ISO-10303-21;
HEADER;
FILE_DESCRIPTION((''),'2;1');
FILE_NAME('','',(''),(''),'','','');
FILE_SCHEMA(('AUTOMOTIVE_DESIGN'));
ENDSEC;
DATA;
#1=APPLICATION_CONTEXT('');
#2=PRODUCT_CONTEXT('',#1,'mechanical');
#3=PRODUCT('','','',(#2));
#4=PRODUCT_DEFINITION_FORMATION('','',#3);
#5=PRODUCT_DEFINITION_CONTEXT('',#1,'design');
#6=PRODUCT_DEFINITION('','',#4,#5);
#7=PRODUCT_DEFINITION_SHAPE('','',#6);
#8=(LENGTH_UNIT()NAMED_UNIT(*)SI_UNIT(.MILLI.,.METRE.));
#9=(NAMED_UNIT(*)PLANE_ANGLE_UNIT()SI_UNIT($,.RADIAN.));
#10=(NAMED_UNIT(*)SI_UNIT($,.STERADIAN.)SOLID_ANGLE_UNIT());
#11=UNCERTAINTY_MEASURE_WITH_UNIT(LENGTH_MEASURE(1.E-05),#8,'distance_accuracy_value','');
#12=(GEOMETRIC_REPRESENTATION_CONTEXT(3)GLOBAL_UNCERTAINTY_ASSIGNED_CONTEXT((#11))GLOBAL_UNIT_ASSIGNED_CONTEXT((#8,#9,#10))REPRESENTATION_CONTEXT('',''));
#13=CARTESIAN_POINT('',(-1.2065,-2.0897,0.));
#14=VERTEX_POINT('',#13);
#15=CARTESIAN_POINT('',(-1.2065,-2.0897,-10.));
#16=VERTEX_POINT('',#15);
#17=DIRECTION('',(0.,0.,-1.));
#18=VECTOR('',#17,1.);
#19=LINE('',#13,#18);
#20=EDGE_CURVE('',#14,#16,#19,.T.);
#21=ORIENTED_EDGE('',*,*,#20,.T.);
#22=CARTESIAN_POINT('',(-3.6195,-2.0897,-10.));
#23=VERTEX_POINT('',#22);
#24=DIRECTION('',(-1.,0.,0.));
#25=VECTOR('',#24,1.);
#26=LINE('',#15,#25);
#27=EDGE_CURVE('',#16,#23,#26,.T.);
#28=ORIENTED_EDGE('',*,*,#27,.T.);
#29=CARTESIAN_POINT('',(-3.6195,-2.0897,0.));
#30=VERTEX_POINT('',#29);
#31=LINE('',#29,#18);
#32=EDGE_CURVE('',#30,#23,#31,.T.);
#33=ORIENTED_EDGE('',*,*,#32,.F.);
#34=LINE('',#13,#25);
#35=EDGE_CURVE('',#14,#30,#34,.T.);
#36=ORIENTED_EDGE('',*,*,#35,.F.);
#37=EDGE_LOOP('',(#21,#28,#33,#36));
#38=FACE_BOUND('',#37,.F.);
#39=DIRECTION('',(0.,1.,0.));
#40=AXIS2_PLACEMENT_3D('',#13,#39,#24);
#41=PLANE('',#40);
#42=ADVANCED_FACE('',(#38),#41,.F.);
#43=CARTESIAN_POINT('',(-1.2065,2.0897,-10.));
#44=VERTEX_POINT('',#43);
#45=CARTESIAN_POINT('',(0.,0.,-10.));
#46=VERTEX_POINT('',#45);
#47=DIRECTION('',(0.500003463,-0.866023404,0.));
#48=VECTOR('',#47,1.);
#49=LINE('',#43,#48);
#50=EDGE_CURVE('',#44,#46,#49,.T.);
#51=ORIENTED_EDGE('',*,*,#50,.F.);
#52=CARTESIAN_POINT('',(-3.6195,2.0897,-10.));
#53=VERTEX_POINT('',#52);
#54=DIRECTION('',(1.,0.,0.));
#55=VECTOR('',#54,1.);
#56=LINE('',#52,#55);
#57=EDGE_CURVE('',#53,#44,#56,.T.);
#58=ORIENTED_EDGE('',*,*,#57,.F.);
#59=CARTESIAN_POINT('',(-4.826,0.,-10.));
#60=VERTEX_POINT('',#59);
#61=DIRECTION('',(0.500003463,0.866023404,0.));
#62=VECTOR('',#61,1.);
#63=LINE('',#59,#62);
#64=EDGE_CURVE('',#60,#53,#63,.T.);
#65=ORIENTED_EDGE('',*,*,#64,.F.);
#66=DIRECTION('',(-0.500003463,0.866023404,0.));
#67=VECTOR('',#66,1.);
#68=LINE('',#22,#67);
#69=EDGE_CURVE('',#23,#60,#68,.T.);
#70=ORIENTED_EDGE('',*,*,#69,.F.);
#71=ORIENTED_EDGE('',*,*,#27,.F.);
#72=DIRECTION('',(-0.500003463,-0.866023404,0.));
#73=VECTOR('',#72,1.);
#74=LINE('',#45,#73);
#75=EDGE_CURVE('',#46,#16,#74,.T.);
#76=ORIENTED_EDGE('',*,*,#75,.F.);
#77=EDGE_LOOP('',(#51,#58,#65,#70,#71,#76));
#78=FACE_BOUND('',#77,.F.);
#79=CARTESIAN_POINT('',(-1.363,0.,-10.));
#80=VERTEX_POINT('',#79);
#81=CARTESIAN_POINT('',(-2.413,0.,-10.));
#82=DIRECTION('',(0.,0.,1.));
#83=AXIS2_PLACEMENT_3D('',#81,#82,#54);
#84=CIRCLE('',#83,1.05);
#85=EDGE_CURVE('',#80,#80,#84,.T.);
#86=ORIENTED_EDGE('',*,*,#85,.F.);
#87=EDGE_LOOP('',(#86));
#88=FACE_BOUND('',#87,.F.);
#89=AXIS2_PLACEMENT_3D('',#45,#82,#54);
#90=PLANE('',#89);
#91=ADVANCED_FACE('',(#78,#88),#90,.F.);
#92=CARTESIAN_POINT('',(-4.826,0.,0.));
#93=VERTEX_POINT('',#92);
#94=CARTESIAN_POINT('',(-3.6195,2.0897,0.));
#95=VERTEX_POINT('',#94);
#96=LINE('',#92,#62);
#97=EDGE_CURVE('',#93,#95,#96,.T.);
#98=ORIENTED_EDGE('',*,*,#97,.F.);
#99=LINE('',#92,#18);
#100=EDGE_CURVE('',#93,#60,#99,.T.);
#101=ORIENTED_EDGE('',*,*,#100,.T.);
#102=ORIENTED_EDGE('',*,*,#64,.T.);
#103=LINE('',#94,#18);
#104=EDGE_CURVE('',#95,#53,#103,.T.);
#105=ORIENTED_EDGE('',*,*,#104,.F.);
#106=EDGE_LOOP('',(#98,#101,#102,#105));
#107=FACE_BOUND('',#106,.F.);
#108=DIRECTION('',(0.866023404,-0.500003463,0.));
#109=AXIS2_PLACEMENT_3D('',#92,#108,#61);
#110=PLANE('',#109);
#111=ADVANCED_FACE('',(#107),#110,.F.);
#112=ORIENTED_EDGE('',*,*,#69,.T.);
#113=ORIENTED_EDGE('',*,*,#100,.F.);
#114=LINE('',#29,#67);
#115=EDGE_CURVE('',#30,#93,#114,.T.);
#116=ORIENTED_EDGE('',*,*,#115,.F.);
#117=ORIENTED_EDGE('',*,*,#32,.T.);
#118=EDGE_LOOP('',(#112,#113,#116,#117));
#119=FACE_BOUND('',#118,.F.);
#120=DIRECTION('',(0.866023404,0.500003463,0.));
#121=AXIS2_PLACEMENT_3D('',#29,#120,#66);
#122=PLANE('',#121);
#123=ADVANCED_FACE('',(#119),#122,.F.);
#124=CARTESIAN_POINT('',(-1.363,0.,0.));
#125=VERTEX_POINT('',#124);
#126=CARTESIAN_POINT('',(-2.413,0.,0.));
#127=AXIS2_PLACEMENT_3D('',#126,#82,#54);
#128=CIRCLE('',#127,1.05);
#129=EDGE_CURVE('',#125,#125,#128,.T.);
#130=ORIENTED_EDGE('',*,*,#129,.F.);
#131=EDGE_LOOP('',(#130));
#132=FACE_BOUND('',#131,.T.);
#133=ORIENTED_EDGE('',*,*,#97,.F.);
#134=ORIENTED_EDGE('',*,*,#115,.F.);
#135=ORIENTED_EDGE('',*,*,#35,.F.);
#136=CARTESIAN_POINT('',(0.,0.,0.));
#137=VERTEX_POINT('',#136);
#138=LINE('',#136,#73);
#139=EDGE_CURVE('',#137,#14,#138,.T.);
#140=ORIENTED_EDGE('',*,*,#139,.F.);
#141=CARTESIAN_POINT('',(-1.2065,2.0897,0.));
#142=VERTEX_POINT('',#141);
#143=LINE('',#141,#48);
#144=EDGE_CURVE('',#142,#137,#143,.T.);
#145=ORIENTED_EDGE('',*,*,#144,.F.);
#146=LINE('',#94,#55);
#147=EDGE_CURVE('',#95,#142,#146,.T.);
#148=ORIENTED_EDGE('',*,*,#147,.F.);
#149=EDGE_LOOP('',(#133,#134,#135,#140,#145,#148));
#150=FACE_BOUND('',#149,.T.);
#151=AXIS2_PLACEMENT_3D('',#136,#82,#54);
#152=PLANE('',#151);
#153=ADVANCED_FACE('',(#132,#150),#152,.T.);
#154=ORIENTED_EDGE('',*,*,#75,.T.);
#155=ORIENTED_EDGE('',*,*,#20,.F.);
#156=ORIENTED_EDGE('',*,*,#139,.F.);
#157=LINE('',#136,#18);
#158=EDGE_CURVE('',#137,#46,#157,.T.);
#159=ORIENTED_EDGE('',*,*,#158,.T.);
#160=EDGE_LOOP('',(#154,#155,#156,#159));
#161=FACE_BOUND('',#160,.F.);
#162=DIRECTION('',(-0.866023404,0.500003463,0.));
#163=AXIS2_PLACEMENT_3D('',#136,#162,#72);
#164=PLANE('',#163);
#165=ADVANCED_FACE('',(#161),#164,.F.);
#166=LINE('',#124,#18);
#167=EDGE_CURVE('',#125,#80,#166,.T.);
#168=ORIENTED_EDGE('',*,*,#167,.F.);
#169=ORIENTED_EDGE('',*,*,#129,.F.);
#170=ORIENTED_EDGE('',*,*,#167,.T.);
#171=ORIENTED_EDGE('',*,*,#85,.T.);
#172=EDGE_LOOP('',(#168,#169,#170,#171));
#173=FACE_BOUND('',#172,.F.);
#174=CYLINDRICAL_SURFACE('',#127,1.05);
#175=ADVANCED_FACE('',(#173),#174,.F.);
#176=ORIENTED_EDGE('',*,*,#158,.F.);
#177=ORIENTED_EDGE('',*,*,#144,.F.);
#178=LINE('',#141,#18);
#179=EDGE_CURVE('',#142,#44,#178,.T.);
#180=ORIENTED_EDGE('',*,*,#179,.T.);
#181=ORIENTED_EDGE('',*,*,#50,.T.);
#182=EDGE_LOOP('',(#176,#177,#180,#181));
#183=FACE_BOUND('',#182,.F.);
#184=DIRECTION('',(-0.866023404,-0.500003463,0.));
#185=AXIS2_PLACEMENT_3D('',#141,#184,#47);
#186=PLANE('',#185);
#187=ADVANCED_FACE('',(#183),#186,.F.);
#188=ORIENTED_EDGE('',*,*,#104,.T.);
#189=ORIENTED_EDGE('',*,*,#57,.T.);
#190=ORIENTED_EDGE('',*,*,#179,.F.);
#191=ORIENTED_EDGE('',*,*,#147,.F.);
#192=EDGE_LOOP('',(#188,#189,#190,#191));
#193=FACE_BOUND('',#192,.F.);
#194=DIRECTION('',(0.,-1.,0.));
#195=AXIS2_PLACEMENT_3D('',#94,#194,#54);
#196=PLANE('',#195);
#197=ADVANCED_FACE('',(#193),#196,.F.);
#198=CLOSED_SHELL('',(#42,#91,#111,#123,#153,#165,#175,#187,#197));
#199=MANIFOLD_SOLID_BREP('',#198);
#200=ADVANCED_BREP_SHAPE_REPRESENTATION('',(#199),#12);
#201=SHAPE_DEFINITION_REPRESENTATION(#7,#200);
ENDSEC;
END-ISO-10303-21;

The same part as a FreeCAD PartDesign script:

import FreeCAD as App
import Part
import Sketcher
Q = App.Units.Quantity

doc = App.newDocument("Part")
body = doc.addObject("PartDesign::Body", "Body")

# Sketch on XY plane
sketch1 = body.newObject("Sketcher::SketchObject", "Sketch")
sketch1.AttachmentSupport = (doc.getObject("XY_Plane"), [""])
sketch1.MapMode = "FlatFace"
sketch1.addGeometry(Part.LineSegment(App.Vector(-1.2, -2.1, 0), App.Vector(0, 0, 0)), False)
sketch1.addGeometry(Part.LineSegment(App.Vector(0, 0, 0), App.Vector(-1.2, 2.1, 0)), False)
sketch1.addGeometry(Part.LineSegment(App.Vector(-1.2, 2.1, 0), App.Vector(-3.6, 2.1, 0)), False)
sketch1.addGeometry(Part.LineSegment(App.Vector(-3.6, 2.1, 0), App.Vector(-4.8, 0, 0)), False)
sketch1.addGeometry(Part.LineSegment(App.Vector(-4.8, 0, 0), App.Vector(-3.6, -2.1, 0)), False)
sketch1.addGeometry(Part.LineSegment(App.Vector(-3.6, -2.1, 0), App.Vector(-1.2, -2.1, 0)), False)
sketch1.addGeometry(Part.Circle(App.Vector(-2.4, 0, 0), App.Vector(0, 0, 1), 1.1), False)
sketch1.addConstraint(Sketcher.Constraint("Coincident", 0, 2, 1, 1))
sketch1.addConstraint(Sketcher.Constraint("Coincident", 1, 2, 2, 1))
sketch1.addConstraint(Sketcher.Constraint("Coincident", 2, 2, 3, 1))
sketch1.addConstraint(Sketcher.Constraint("Coincident", 3, 2, 4, 1))
sketch1.addConstraint(Sketcher.Constraint("Coincident", 4, 2, 5, 1))
sketch1.addConstraint(Sketcher.Constraint("Coincident", 5, 2, 0, 1))
sketch1.addConstraint(Sketcher.Constraint("Horizontal", 2))
sketch1.addConstraint(Sketcher.Constraint("Horizontal", 5))
sketch1.addConstraint(Sketcher.Constraint("Coincident", 0, 2, -1, 1))
sketch1.addConstraint(Sketcher.Constraint("Symmetric", 2, 2, 4, 2, -1))
sketch1.addConstraint(Sketcher.Constraint("PointOnObject", 6, 3, -1))
sketch1.addConstraint(Sketcher.Constraint("PointOnObject", 3, 2, -1))
sketch1.addConstraint(Sketcher.Constraint("Parallel", 0, 3))
sketch1.addConstraint(Sketcher.Constraint("Parallel", 1, 4))
sketch1.addConstraint(Sketcher.Constraint("Diameter", 6, Q("2.1 mm")))
sketch1.addConstraint(Sketcher.Constraint("Angle", 0, Q("59.9998 deg")))
sketch1.addConstraint(Sketcher.Constraint("DistanceX", 2, 2, 2, 1, Q("0.095 in")))
sketch1.addConstraint(Sketcher.Constraint("DistanceX", 3, 2, -1, 1, Q("0.19 in")))
sketch1.addConstraint(Sketcher.Constraint("DistanceX", 6, 3, -1, 1, Q("0.095 in")))
pad1 = body.newObject("PartDesign::Pad", "Pad")
pad1.Profile = sketch1
pad1.Length = Q("0.3937008 in")
pad1.Reversed = True

doc.recompute()
